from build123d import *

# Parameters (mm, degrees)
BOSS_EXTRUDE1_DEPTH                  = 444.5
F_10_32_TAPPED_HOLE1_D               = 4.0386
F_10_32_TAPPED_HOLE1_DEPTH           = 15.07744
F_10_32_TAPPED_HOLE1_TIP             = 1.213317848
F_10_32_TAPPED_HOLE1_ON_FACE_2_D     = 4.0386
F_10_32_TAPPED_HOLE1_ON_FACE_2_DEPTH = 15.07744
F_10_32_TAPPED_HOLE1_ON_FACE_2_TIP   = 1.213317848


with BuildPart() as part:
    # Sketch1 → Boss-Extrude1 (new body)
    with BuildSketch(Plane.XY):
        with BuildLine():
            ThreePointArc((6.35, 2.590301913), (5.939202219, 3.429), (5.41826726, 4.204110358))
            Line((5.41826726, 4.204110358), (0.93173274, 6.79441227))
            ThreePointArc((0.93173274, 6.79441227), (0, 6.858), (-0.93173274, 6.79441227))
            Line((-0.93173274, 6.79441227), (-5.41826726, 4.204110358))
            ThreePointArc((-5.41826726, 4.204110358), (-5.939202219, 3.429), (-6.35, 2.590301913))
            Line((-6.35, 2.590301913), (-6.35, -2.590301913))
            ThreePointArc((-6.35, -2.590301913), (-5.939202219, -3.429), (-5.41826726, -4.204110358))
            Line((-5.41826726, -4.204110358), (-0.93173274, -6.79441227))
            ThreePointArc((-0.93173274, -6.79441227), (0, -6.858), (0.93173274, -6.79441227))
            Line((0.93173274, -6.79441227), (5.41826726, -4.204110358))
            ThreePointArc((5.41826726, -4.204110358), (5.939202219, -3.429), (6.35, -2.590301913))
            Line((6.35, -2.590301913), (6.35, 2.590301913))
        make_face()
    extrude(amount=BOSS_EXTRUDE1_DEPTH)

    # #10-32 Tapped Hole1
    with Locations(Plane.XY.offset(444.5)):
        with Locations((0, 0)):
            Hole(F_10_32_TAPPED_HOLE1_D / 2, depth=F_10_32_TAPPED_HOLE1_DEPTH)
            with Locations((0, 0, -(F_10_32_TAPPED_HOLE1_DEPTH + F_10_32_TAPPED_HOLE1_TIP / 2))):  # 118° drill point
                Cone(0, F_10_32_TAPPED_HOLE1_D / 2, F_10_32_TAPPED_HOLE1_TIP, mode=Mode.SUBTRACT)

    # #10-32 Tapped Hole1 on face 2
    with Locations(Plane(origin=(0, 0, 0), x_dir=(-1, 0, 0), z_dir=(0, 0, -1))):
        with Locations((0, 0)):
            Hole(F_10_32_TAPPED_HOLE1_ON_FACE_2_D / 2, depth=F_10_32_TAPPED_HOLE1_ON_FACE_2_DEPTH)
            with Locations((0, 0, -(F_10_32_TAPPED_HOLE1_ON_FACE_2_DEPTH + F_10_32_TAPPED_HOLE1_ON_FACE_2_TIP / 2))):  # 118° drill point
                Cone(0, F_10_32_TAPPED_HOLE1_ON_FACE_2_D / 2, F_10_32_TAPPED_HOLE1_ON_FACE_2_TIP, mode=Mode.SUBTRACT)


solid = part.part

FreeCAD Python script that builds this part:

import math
import FreeCAD as App
import Part
import Sketcher
from FreeCAD import Vector
Q = App.Units.Quantity

doc = App.newDocument("Part")
body = doc.addObject("PartDesign::Body", "Body")

# Sketch on XY plane
sketch1 = body.newObject("Sketcher::SketchObject", "Sketch")
sketch1.AttachmentSupport = (doc.getObject("XY_Plane"), [""])
sketch1.MapMode = "FlatFace"
sketch1.addGeometry(Part.ArcOfCircle(Part.Circle(Vector(0, 0, 0), Vector(0, 0, 1), 6.9), math.radians(22.19), math.radians(37.81)), False)
sketch1.addGeometry(Part.LineSegment(Vector(5.4, 4.2, 0), Vector(0.9, 6.8, 0)), False)
sketch1.addGeometry(Part.ArcOfCircle(Part.Circle(Vector(0, 0, 0), Vector(0, 0, 1), 6.9), math.radians(82.19), math.radians(97.81)), False)
sketch1.addGeometry(Part.LineSegment(Vector(-0.9, 6.8, 0), Vector(-5.4, 4.2, 0)), False)
sketch1.addGeometry(Part.ArcOfCircle(Part.Circle(Vector(0, 0, 0), Vector(0, 0, 1), 6.9), math.radians(142.19), math.radians(157.81)), False)
sketch1.addGeometry(Part.LineSegment(Vector(-6.3, 2.6, 0), Vector(-6.3, -2.6, 0)), False)
sketch1.addGeometry(Part.ArcOfCircle(Part.Circle(Vector(0, 0, 0), Vector(0, 0, 1), 6.9), math.radians(-157.81), math.radians(-142.19)), False)
sketch1.addGeometry(Part.LineSegment(Vector(-5.4, -4.2, 0), Vector(-0.9, -6.8, 0)), False)
sketch1.addGeometry(Part.ArcOfCircle(Part.Circle(Vector(0, 0, 0), Vector(0, 0, 1), 6.9), math.radians(-97.81), math.radians(-82.19)), False)
sketch1.addGeometry(Part.LineSegment(Vector(0.9, -6.8, 0), Vector(5.4, -4.2, 0)), False)
sketch1.addGeometry(Part.ArcOfCircle(Part.Circle(Vector(0, 0, 0), Vector(0, 0, 1), 6.9), math.radians(-37.81), math.radians(-22.19)), False)
sketch1.addGeometry(Part.LineSegment(Vector(6.3, -2.6, 0), Vector(6.3, 2.6, 0)), False)
sketch1.addConstraint(Sketcher.Constraint("Coincident", 0, 2, 1, 1))
sketch1.addConstraint(Sketcher.Constraint("Coincident", 1, 2, 2, 1))
sketch1.addConstraint(Sketcher.Constraint("Coincident", 2, 2, 3, 1))
sketch1.addConstraint(Sketcher.Constraint("Coincident", 3, 2, 4, 1))
sketch1.addConstraint(Sketcher.Constraint("Coincident", 4, 2, 5, 1))
sketch1.addConstraint(Sketcher.Constraint("Coincident", 5, 2, 6, 1))
sketch1.addConstraint(Sketcher.Constraint("Coincident", 6, 2, 7, 1))
sketch1.addConstraint(Sketcher.Constraint("Coincident", 7, 2, 8, 1))
sketch1.addConstraint(Sketcher.Constraint("Coincident", 8, 2, 9, 1))
sketch1.addConstraint(Sketcher.Constraint("Coincident", 9, 2, 10, 1))
sketch1.addConstraint(Sketcher.Constraint("Coincident", 10, 2, 11, 1))
sketch1.addConstraint(Sketcher.Constraint("Coincident", 11, 2, 0, 1))
sketch1.addConstraint(Sketcher.Constraint("Vertical", 5))
sketch1.addConstraint(Sketcher.Constraint("Vertical", 11))
sketch1.addConstraint(Sketcher.Constraint("Coincident", 0, 3, -1, 1))
sketch1.addConstraint(Sketcher.Constraint("Coincident", 2, 3, -1, 1))
sketch1.addConstraint(Sketcher.Constraint("Coincident", 4, 3, -1, 1))
sketch1.addConstraint(Sketcher.Constraint("Coincident", 6, 3, -1, 1))
sketch1.addConstraint(Sketcher.Constraint("Coincident", 8, 3, -1, 1))
sketch1.addConstraint(Sketcher.Constraint("Coincident", 10, 3, -1, 1))
sketch1.addConstraint(Sketcher.Constraint("Equal", 0, 2))
sketch1.addConstraint(Sketcher.Constraint("Equal", 2, 4))
sketch1.addConstraint(Sketcher.Constraint("Equal", 4, 6))
sketch1.addConstraint(Sketcher.Constraint("Equal", 6, 8))
sketch1.addConstraint(Sketcher.Constraint("Equal", 8, 10))
sketch1.addConstraint(Sketcher.Constraint("Parallel", 1, 7))
sketch1.addConstraint(Sketcher.Constraint("Parallel", 3, 9))
sketch1.addConstraint(Sketcher.Constraint("Horizontal", 1, 2, 2, 2))
sketch1.addConstraint(Sketcher.Constraint("Horizontal", 0, 2, 3, 2))
sketch1.addConstraint(Sketcher.Constraint("Horizontal", 7, 2, 8, 2))
sketch1.addConstraint(Sketcher.Constraint("Horizontal", 5, 2, 10, 2))
sketch1.addConstraint(Sketcher.Constraint("Vertical", 3, 2, 6, 2))
sketch1.addConstraint(Sketcher.Constraint("Radius", 0, Q("0.27 in")))
sketch1.addConstraint(Sketcher.Constraint("Angle", 1, Q("150 deg")))
sketch1.addConstraint(Sketcher.Constraint("DistanceX", 4, 2, -1, 1, Q("0.25 in")))
sketch1.addConstraint(Sketcher.Constraint("DistanceX", 2, 2, 0, 2, Q("0.25 in")))
pad1 = body.newObject("PartDesign::Pad", "Pad")
pad1.Profile = sketch1
pad1.Length = Q("17.5 in")

# Sketch on XY plane
sketch2 = body.newObject("Sketcher::SketchObject", "Sketch001")
sketch2.AttachmentSupport = (doc.getObject("XY_Plane"), [""])
sketch2.MapMode = "FlatFace"
sketch2.AttachmentOffset = App.Placement(Vector(0, 0, 17.5 * 25.4), App.Rotation())
sketch2.addGeometry(Part.Circle(Vector(0, 0, 0), Vector(0, 0, 1), 2), False)
sketch2.addConstraint(Sketcher.Constraint("Coincident", 0, 3, -1, 1))
sketch2.addConstraint(Sketcher.Constraint("Diameter", 0, Q("0.159 in")))
doc.recompute()
hole = body.newObject("PartDesign::Hole", "Hole")
hole.Profile = sketch2
hole.ThreadType = "None"
hole.Diameter = Q("0.159 in")
hole.DepthType = "Dimension"
hole.Depth = Q("0.5936 in")
hole.DrillPoint = "Angled"
hole.DrillPointAngle = 118

# Sketch on XY plane
sketch3 = body.newObject("Sketcher::SketchObject", "Sketch002")
sketch3.AttachmentSupport = (doc.getObject("XY_Plane"), [""])
sketch3.MapMode = "FlatFace"
sketch3.addGeometry(Part.Circle(Vector(0, 0, 0), Vector(0, 0, 1), 2), False)
sketch3.addConstraint(Sketcher.Constraint("Coincident", 0, 3, -1, 1))
sketch3.addConstraint(Sketcher.Constraint("Diameter", 0, Q("0.159 in")))
doc.recompute()
hole2 = body.newObject("PartDesign::Hole", "Hole001")
hole2.Profile = sketch3
hole2.ThreadType = "None"
hole2.Diameter = Q("0.159 in")
hole2.DepthType = "Dimension"
hole2.Depth = Q("0.5936 in")
hole2.DrillPoint = "Angled"
hole2.DrillPointAngle = 118
hole2.Reversed = True

doc.recompute()
